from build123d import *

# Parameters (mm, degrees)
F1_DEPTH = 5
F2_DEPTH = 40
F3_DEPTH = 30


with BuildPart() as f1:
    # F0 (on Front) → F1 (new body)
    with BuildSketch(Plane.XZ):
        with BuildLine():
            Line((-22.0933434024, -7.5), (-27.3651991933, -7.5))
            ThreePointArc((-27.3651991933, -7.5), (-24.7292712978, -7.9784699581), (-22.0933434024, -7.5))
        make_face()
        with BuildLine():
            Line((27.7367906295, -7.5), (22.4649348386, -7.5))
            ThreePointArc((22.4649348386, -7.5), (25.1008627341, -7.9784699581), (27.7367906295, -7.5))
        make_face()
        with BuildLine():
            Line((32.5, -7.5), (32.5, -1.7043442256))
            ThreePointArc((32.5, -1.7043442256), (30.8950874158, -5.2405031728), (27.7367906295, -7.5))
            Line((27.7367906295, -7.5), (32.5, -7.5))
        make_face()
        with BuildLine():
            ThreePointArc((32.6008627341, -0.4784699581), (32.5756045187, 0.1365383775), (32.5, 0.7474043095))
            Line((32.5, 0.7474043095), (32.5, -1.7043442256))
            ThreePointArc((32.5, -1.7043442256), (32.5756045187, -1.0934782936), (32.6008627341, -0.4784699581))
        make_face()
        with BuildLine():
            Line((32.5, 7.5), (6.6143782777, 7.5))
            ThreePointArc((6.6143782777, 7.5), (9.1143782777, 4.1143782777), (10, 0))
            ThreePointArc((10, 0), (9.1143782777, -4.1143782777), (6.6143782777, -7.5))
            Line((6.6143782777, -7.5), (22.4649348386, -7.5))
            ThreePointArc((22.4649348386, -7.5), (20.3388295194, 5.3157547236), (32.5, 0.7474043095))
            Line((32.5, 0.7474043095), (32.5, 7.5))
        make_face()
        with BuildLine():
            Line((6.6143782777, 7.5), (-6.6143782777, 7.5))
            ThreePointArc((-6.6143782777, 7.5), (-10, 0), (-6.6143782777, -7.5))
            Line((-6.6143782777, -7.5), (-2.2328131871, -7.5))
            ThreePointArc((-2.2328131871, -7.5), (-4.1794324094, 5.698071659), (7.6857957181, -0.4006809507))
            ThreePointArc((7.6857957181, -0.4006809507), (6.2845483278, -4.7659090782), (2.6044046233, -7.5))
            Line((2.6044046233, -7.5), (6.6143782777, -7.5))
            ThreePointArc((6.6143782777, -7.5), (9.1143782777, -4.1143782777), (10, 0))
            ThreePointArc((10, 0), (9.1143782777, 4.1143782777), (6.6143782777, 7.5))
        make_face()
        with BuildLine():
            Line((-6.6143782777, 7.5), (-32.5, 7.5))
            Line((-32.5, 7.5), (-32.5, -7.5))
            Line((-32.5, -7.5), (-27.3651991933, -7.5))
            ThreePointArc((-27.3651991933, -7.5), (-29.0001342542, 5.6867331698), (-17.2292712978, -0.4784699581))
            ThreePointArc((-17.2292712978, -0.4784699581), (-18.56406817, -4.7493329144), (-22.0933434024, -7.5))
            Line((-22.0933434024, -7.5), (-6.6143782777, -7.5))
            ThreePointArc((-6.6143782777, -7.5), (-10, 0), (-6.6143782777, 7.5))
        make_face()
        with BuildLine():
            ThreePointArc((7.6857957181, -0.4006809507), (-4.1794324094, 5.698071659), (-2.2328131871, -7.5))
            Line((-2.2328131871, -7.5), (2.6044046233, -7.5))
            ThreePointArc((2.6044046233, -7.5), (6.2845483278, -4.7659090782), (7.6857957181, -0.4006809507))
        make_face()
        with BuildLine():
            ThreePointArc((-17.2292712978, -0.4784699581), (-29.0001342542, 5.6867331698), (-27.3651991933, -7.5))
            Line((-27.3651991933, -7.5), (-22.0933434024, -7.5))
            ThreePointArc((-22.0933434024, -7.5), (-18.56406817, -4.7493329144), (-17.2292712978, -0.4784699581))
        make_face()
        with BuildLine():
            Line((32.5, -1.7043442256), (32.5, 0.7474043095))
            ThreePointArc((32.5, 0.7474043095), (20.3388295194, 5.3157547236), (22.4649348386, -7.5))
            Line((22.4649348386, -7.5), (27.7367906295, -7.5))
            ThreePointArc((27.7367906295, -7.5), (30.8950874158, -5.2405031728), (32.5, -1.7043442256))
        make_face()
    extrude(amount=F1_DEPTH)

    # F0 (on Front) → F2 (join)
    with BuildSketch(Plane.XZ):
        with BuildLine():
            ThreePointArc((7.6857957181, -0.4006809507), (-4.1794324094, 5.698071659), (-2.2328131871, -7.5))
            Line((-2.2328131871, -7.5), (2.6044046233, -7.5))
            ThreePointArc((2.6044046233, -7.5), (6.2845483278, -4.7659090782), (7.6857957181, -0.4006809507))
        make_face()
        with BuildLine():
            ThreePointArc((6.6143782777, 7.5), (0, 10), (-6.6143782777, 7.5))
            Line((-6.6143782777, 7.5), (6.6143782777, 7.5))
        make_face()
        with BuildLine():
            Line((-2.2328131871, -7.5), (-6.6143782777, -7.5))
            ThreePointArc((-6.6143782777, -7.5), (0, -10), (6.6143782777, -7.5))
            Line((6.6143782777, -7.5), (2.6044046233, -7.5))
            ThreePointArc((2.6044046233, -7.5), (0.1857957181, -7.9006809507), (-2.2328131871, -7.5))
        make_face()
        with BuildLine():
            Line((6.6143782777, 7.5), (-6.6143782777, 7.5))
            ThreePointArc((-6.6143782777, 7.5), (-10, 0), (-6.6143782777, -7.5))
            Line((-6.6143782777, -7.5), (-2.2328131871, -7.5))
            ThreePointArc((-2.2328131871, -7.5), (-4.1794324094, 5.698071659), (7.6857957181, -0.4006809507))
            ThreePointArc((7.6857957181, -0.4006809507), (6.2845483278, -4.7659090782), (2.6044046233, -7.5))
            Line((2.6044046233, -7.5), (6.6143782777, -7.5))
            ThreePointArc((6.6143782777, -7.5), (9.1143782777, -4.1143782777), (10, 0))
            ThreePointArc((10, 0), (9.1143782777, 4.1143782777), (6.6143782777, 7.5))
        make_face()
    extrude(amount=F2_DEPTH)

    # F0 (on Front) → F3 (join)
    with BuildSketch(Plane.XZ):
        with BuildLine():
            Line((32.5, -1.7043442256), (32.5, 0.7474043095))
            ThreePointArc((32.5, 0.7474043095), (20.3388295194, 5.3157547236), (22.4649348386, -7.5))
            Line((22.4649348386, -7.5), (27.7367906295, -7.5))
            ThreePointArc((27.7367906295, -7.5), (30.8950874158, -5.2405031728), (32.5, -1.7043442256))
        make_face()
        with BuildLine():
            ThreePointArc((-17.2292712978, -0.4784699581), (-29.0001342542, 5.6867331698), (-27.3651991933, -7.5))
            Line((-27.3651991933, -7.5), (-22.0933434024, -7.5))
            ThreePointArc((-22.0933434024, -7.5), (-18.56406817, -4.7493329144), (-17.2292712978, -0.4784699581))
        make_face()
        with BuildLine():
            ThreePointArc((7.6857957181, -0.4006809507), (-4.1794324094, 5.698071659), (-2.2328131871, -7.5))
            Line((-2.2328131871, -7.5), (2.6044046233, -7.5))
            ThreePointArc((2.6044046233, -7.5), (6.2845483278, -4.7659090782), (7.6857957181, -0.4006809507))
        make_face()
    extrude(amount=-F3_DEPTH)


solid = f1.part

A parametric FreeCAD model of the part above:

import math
import FreeCAD as App
import Part
import Sketcher

doc = App.newDocument("Part")
body = doc.addObject("PartDesign::Body", "Body")

# Sketch on XZ plane
sketch1 = body.newObject("Sketcher::SketchObject", "Sketch")
sketch1.AttachmentSupport = (doc.getObject("XZ_Plane"), [""])
sketch1.MapMode = "FlatFace"
sketch1.addGeometry(Part.ArcOfCircle(Part.Circle(App.Vector(-24.729271, -0.47847, 0), App.Vector(0, 0, 1), 7.5), math.radians(-110.576461), math.radians(-69.423539)), False)
sketch1.addGeometry(Part.LineSegment(App.Vector(-22.093343, -7.5, 0), App.Vector(22.464935, -7.5, 0)), False)
sketch1.addGeometry(Part.ArcOfCircle(Part.Circle(App.Vector(25.100863, -0.47847, 0), App.Vector(0, 0, 1), 7.5), math.radians(-110.576461), math.radians(-69.423539)), False)
sketch1.addGeometry(Part.LineSegment(App.Vector(27.736791, -7.5, 0), App.Vector(32.5, -7.5, 0)), False)
sketch1.addGeometry(Part.LineSegment(App.Vector(32.5, -7.5, 0), App.Vector(32.5, -1.704344, 0)), False)
sketch1.addGeometry(Part.ArcOfCircle(Part.Circle(App.Vector(25.100863, -0.47847, 0), App.Vector(0, 0, 1), 7.5), math.radians(-9.407198), math.radians(0)), False)
sketch1.addGeometry(Part.ArcOfCircle(Part.Circle(App.Vector(25.100863, -0.47847, 0), App.Vector(0, 0, 1), 7.5), math.radians(0), math.radians(9.407198)), False)
sketch1.addGeometry(Part.LineSegment(App.Vector(32.5, 0.747404, 0), App.Vector(32.5, 7.5, 0)), False)
sketch1.addGeometry(Part.LineSegment(App.Vector(32.5, 7.5, 0), App.Vector(-32.5, 7.5, 0)), False)
sketch1.addGeometry(Part.LineSegment(App.Vector(-32.5, 7.5, 0), App.Vector(-32.5, -7.5, 0)), False)
sketch1.addGeometry(Part.LineSegment(App.Vector(-32.5, -7.5, 0), App.Vector(-27.365199, -7.5, 0)), False)
sketch1.addConstraint(Sketcher.Constraint("Coincident", 0, 2, 1, 1))
sketch1.addConstraint(Sketcher.Constraint("Coincident", 1, 2, 2, 1))
sketch1.addConstraint(Sketcher.Constraint("Coincident", 2, 2, 3, 1))
sketch1.addConstraint(Sketcher.Constraint("Coincident", 3, 2, 4, 1))
sketch1.addConstraint(Sketcher.Constraint("Coincident", 4, 2, 5, 1))
sketch1.addConstraint(Sketcher.Constraint("Tangent", 5, 2, 6, 1))
sketch1.addConstraint(Sketcher.Constraint("Coincident", 6, 2, 7, 1))
sketch1.addConstraint(Sketcher.Constraint("Coincident", 7, 2, 8, 1))
sketch1.addConstraint(Sketcher.Constraint("Coincident", 8, 2, 9, 1))
sketch1.addConstraint(Sketcher.Constraint("Coincident", 9, 2, 10, 1))
sketch1.addConstraint(Sketcher.Constraint("Coincident", 10, 2, 0, 1))
sketch1.addConstraint(Sketcher.Constraint("Horizontal", 1))
sketch1.addConstraint(Sketcher.Constraint("Horizontal", 3))
sketch1.addConstraint(Sketcher.Constraint("Vertical", 4))
sketch1.addConstraint(Sketcher.Constraint("Vertical", 7))
sketch1.addConstraint(Sketcher.Constraint("Horizontal", 8))
sketch1.addConstraint(Sketcher.Constraint("Vertical", 9))
sketch1.addConstraint(Sketcher.Constraint("Horizontal", 10))
sketch1.addConstraint(Sketcher.Constraint("Coincident", 5, 3, 2, 3))
sketch1.addConstraint(Sketcher.Constraint("Equal", 0, 2))
sketch1.addConstraint(Sketcher.Constraint("Equal", 2, 5))
sketch1.addConstraint(Sketcher.Constraint("Equal", 5, 6))
sketch1.addConstraint(Sketcher.Constraint("Symmetric", 3, 2, 8, 2, -1, 1))
sketch1.addConstraint(Sketcher.Constraint("Symmetric", 7, 2, 9, 2, -1, 1))
sketch1.addConstraint(Sketcher.Constraint("Horizontal", 0, 3, 2, 3))
sketch1.addConstraint(Sketcher.Constraint("Horizontal", 1, 2, 2, 2))
sketch1.addConstraint(Sketcher.Constraint("Horizontal", 6, 3, 5, 2))
sketch1.addConstraint(Sketcher.Constraint("Radius", 0, 7.5))
sketch1.addConstraint(Sketcher.Constraint("DistanceX", 8, 2, 8, 1, 65.0))
sketch1.addConstraint(Sketcher.Constraint("DistanceY", 9, 2, 9, 1, 15.0))
sketch1.addConstraint(Sketcher.Constraint("DistanceX", 10, 1, 10, 2, 5.134801))
sketch1.addConstraint(Sketcher.Constraint("DistanceX", 1, 1, 1, 2, 44.558278))
sketch1.addConstraint(Sketcher.Constraint("DistanceX", 3, 1, 3, 2, 4.763209))
pad1 = body.newObject("PartDesign::Pad", "Pad")
pad1.Profile = sketch1
pad1.Length = 5

# Sketch on XZ plane
sketch2 = body.newObject("Sketcher::SketchObject", "Sketch001")
sketch2.AttachmentSupport = (doc.getObject("XZ_Plane"), [""])
sketch2.MapMode = "FlatFace"
sketch2.addGeometry(Part.ArcOfCircle(Part.Circle(App.Vector(0, 0, 0), App.Vector(0, 0, 1), 10), math.radians(131.409622), math.radians(228.590378)), False)
sketch2.addGeometry(Part.ArcOfCircle(Part.Circle(App.Vector(0, 0, 0), App.Vector(0, 0, 1), 10), math.radians(-131.409622), math.radians(-48.590378)), False)
sketch2.addGeometry(Part.ArcOfCircle(Part.Circle(App.Vector(0, 0, 0), App.Vector(0, 0, 1), 10), math.radians(-48.590378), math.radians(0)), False)
sketch2.addGeometry(Part.ArcOfCircle(Part.Circle(App.Vector(0, 0, 0), App.Vector(0, 0, 1), 10), math.radians(0), math.radians(48.590378)), False)
sketch2.addGeometry(Part.ArcOfCircle(Part.Circle(App.Vector(0, 0, 0), App.Vector(0, 0, 1), 10), math.radians(48.590378), math.radians(131.409622)), False)
sketch2.addGeometry(Part.LineSegment(App.Vector(-2.232813, -7.5, 0), App.Vector(2.604405, -7.5, 0)), False)
sketch2.addGeometry(Part.ArcOfCircle(Part.Circle(App.Vector(0.185796, -0.400681, 0), App.Vector(0, 0, 1), 7.5), math.radians(-108.813043), math.radians(-71.186957)), False)
sketch2.addConstraint(Sketcher.Constraint("Tangent", 0, 2, 1, 1))
sketch2.addConstraint(Sketcher.Constraint("Tangent", 1, 2, 2, 1))
sketch2.addConstraint(Sketcher.Constraint("Tangent", 2, 2, 3, 1))
sketch2.addConstraint(Sketcher.Constraint("Tangent", 3, 2, 4, 1))
sketch2.addConstraint(Sketcher.Constraint("Tangent", 4, 2, 0, 1))
sketch2.addConstraint(Sketcher.Constraint("Coincident", 5, 1, 6, 1))
sketch2.addConstraint(Sketcher.Constraint("Coincident", 6, 2, 5, 2))
sketch2.addConstraint(Sketcher.Constraint("Horizontal", 5))
sketch2.addConstraint(Sketcher.Constraint("Coincident", 0, 3, -1, 1))
sketch2.addConstraint(Sketcher.Constraint("Coincident", 2, 3, -1, 1))
sketch2.addConstraint(Sketcher.Constraint("PointOnObject", 2, 2, -1))
sketch2.addConstraint(Sketcher.Constraint("Horizontal", 0, 2, 1, 2))
sketch2.addConstraint(Sketcher.Constraint("Horizontal", 3, 2, 4, 2))
sketch2.addConstraint(Sketcher.Constraint("Horizontal", 1, 2, 5, 1))
sketch2.addConstraint(Sketcher.Constraint("Vertical", 1, 2, 3, 2))
sketch2.addConstraint(Sketcher.Constraint("Radius", 0, 10.0))
sketch2.addConstraint(Sketcher.Constraint("Radius", 6, 7.5))
sketch2.addConstraint(Sketcher.Constraint("DistanceY", 0, 2, -1, 1, 7.5))
sketch2.addConstraint(Sketcher.Constraint("DistanceX", 5, 1, 5, 2, 4.837218))
sketch2.addConstraint(Sketcher.Constraint("DistanceX", -1, 1, 6, 3, 0.185796))
pad2 = body.newObject("PartDesign::Pad", "Pad001")
pad2.Profile = sketch2
pad2.Length = 40

# Sketch on XZ plane
sketch3 = body.newObject("Sketcher::SketchObject", "Sketch002")
sketch3.AttachmentSupport = (doc.getObject("XZ_Plane"), [""])
sketch3.MapMode = "FlatFace"
sketch3.addGeometry(Part.LineSegment(App.Vector(32.5, -1.704344, 0), App.Vector(32.5, 0.747404, 0)), False)
sketch3.addGeometry(Part.ArcOfCircle(Part.Circle(App.Vector(25.100863, -0.47847, 0), App.Vector(0, 0, 1), 7.5), math.radians(9.407198), math.radians(249.423539)), False)
sketch3.addGeometry(Part.LineSegment(App.Vector(22.464935, -7.5, 0), App.Vector(27.736791, -7.5, 0)), False)
sketch3.addGeometry(Part.ArcOfCircle(Part.Circle(App.Vector(25.100863, -0.47847, 0), App.Vector(0, 0, 1), 7.5), math.radians(-69.423539), math.radians(-9.407198)), False)
sketch3.addGeometry(Part.ArcOfCircle(Part.Circle(App.Vector(-24.729271, -0.47847, 0), App.Vector(0, 0, 1), 7.5), math.radians(0), math.radians(249.423539)), False)
sketch3.addGeometry(Part.LineSegment(App.Vector(-27.365199, -7.5, 0), App.Vector(-22.093343, -7.5, 0)), False)
sketch3.addGeometry(Part.ArcOfCircle(Part.Circle(App.Vector(-24.729271, -0.47847, 0), App.Vector(0, 0, 1), 7.5), math.radians(-69.423539), math.radians(0)), False)
sketch3.addGeometry(Part.ArcOfCircle(Part.Circle(App.Vector(0.185796, -0.400681, 0), App.Vector(0, 0, 1), 7.5), math.radians(0), math.radians(251.186957)), False)
sketch3.addGeometry(Part.LineSegment(App.Vector(-2.232813, -7.5, 0), App.Vector(2.604405, -7.5, 0)), False)
sketch3.addGeometry(Part.ArcOfCircle(Part.Circle(App.Vector(0.185796, -0.400681, 0), App.Vector(0, 0, 1), 7.5), math.radians(-71.186957), math.radians(0)), False)
sketch3.addConstraint(Sketcher.Constraint("Coincident", 0, 2, 1, 1))
sketch3.addConstraint(Sketcher.Constraint("Coincident", 1, 2, 2, 1))
sketch3.addConstraint(Sketcher.Constraint("Coincident", 2, 2, 3, 1))
sketch3.addConstraint(Sketcher.Constraint("Coincident", 3, 2, 0, 1))
sketch3.addConstraint(Sketcher.Constraint("Coincident", 4, 2, 5, 1))
sketch3.addConstraint(Sketcher.Constraint("Coincident", 5, 2, 6, 1))
sketch3.addConstraint(Sketcher.Constraint("Tangent", 6, 2, 4, 1))
sketch3.addConstraint(Sketcher.Constraint("Coincident", 7, 2, 8, 1))
sketch3.addConstraint(Sketcher.Constraint("Coincident", 8, 2, 9, 1))
sketch3.addConstraint(Sketcher.Constraint("Tangent", 9, 2, 7, 1))
sketch3.addConstraint(Sketcher.Constraint("Vertical", 0))
sketch3.addConstraint(Sketcher.Constraint("Horizontal", 2))
sketch3.addConstraint(Sketcher.Constraint("Horizontal", 5))
sketch3.addConstraint(Sketcher.Constraint("Horizontal", 8))
sketch3.addConstraint(Sketcher.Constraint("Coincident", 3, 3, 1, 3))
sketch3.addConstraint(Sketcher.Constraint("Equal", 1, 3))
sketch3.addConstraint(Sketcher.Constraint("Equal", 3, 4))
sketch3.addConstraint(Sketcher.Constraint("Equal", 4, 6))
sketch3.addConstraint(Sketcher.Constraint("Equal", 6, 7))
sketch3.addConstraint(Sketcher.Constraint("Equal", 7, 9))
sketch3.addConstraint(Sketcher.Constraint("Horizontal", 3, 3, 4, 3))
sketch3.addConstraint(Sketcher.Constraint("Horizontal", 2, 2, 4, 2))
sketch3.addConstraint(Sketcher.Constraint("Horizontal", 4, 3, 6, 2))
sketch3.addConstraint(Sketcher.Constraint("Horizontal", 5, 2, 7, 2))
sketch3.addConstraint(Sketcher.Constraint("Horizontal", 7, 3, 9, 2))
sketch3.addConstraint(Sketcher.Constraint("Radius", 1, 7.5))
sketch3.addConstraint(Sketcher.Constraint("DistanceX", -1, 1, 0, 2, 32.5))
sketch3.addConstraint(Sketcher.Constraint("DistanceY", 1, 2, -1, 1, 7.5))
sketch3.addConstraint(Sketcher.Constraint("DistanceY", 0, 1, 0, 2, 2.451749))
sketch3.addConstraint(Sketcher.Constraint("DistanceX", 4, 2, -1, 1, 27.365199))
sketch3.addConstraint(Sketcher.Constraint("DistanceX", 2, 1, 2, 2, 5.271856))
sketch3.addConstraint(Sketcher.Constraint("DistanceX", 8, 1, 8, 2, 4.837218))
sketch3.addConstraint(Sketcher.Constraint("DistanceX", 7, 3, 1, 2, 22.279139))
pad3 = body.newObject("PartDesign::Pad", "Pad002")
pad3.Profile = sketch3
pad3.Length = 30
pad3.Reversed = True

doc.recompute()
